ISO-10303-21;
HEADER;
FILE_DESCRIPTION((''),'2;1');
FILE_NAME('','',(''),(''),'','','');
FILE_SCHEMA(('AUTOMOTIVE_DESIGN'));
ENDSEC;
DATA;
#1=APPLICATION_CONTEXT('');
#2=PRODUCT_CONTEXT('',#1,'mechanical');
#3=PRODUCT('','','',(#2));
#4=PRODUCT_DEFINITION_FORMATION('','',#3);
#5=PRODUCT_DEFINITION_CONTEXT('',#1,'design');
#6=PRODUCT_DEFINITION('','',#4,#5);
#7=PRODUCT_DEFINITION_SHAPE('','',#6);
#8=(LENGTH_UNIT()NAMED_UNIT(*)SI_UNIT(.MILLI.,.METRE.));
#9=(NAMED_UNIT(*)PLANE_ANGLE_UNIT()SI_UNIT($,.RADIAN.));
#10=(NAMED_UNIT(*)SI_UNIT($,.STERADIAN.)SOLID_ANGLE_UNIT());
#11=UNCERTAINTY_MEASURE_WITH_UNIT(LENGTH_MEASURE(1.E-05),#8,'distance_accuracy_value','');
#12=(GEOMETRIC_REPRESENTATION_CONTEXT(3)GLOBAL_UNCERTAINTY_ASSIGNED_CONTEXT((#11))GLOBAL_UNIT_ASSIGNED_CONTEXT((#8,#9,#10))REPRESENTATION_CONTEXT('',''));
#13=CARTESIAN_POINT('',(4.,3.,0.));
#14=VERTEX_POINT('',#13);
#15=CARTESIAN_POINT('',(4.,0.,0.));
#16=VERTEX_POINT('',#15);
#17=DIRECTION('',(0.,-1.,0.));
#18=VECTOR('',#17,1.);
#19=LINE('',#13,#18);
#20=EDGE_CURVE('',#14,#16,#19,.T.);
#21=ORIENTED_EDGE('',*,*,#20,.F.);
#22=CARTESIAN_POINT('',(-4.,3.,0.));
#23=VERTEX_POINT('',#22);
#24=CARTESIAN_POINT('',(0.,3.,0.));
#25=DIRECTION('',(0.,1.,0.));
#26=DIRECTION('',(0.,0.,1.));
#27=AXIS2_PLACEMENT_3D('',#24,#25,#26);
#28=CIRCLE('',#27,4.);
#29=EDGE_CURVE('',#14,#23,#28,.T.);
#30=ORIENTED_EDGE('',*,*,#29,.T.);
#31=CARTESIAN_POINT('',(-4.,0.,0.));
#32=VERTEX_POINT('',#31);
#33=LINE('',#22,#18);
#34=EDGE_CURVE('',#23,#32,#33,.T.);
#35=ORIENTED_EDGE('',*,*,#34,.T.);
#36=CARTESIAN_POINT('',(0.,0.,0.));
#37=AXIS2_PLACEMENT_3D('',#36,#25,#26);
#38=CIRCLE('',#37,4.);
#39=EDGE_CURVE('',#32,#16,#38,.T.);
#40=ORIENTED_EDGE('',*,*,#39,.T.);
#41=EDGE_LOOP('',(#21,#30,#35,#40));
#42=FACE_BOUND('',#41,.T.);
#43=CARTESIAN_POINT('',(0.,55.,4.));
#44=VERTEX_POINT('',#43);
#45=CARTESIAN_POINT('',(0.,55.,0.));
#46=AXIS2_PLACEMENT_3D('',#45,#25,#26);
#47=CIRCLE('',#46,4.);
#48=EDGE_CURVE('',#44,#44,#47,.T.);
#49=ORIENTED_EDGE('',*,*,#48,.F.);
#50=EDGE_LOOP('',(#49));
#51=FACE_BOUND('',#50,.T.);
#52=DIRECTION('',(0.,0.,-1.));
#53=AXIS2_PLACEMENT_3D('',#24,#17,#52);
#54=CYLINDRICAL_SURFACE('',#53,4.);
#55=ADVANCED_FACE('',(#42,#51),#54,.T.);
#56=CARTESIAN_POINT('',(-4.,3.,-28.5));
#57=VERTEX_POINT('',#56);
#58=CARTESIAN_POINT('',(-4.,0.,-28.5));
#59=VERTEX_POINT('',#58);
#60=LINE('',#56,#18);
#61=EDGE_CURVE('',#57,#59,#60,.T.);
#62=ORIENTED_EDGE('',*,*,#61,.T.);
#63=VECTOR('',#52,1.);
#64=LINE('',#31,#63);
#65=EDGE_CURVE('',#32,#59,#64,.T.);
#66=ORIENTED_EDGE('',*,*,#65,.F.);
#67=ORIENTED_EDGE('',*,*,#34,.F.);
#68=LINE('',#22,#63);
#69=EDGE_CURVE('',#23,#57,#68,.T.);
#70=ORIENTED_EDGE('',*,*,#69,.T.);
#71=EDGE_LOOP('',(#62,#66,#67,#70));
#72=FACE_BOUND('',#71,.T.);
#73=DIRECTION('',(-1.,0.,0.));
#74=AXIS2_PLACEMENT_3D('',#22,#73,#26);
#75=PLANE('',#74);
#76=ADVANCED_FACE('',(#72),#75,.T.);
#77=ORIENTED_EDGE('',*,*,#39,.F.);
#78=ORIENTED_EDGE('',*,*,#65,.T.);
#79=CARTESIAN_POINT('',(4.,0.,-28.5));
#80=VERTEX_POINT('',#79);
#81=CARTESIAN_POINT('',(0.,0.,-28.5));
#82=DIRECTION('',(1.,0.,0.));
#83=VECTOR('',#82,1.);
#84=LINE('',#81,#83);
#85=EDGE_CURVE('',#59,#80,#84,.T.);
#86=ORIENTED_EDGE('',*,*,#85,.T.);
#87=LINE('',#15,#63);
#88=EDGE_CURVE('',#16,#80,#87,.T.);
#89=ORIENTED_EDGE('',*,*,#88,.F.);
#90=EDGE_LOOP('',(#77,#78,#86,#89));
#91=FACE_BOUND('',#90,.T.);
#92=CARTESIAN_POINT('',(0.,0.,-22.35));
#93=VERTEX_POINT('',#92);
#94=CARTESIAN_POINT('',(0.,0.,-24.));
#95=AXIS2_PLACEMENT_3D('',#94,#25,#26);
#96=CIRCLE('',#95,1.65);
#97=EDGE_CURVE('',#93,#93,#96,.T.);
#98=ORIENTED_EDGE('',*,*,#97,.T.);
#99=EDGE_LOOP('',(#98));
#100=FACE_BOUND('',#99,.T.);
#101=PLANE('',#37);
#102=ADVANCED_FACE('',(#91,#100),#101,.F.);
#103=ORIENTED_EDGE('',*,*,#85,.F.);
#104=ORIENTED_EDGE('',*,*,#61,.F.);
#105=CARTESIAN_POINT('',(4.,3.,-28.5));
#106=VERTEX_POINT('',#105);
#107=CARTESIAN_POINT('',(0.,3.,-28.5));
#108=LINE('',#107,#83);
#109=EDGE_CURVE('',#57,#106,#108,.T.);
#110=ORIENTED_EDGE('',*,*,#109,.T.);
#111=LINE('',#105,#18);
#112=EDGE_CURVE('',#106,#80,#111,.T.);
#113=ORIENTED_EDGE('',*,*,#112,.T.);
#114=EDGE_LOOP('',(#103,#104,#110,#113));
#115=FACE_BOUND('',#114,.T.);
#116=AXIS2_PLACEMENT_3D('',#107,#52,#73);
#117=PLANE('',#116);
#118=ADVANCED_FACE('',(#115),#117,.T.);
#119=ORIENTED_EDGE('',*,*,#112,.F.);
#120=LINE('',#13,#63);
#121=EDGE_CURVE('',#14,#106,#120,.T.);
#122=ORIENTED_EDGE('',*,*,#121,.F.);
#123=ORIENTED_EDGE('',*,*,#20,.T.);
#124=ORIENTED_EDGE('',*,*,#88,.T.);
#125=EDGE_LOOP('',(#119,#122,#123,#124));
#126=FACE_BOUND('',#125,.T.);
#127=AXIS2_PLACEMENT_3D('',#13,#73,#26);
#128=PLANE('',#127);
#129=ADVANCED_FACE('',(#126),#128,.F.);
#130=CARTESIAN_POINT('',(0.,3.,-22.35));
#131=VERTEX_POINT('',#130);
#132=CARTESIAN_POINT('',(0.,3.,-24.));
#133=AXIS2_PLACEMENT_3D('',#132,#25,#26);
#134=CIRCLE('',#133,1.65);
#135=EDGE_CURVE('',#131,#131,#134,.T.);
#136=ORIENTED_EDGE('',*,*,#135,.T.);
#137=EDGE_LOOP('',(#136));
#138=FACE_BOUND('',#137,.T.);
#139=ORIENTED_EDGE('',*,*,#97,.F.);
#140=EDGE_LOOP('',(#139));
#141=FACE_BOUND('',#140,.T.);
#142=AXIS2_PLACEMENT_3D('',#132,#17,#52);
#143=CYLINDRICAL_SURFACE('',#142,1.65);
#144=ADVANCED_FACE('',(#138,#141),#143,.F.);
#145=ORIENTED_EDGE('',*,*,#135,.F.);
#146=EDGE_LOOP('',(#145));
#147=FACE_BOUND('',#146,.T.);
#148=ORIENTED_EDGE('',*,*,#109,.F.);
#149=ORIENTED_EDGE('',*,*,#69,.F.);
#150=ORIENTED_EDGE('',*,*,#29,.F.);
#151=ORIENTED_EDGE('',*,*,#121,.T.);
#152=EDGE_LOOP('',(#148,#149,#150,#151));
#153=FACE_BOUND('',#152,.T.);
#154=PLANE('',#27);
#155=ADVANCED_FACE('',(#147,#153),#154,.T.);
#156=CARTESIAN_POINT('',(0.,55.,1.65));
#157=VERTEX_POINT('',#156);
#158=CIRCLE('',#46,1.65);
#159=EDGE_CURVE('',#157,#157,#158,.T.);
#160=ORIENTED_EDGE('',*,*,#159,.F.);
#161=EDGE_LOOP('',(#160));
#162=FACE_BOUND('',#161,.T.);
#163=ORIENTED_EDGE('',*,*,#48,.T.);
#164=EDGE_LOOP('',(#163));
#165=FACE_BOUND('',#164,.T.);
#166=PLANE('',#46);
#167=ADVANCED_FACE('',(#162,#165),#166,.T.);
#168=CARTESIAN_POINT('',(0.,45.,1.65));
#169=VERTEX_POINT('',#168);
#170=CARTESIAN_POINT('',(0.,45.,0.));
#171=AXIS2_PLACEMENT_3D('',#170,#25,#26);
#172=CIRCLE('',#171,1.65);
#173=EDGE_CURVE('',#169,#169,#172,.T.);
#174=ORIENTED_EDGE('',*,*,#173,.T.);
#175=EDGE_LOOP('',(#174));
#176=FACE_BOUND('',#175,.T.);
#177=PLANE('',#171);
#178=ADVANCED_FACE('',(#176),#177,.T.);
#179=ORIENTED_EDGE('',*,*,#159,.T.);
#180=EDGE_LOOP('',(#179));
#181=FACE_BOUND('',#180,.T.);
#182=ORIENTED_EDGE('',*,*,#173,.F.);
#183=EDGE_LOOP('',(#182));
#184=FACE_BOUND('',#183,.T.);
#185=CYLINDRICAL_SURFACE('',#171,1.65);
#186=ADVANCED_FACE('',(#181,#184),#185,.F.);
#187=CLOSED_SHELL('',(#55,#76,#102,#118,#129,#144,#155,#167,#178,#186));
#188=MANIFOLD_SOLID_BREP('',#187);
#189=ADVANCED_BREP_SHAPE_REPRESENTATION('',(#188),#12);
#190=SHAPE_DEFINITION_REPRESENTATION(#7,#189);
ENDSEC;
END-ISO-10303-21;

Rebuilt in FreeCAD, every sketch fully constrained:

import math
import FreeCAD as App
import Part
import Sketcher
from FreeCAD import Vector

doc = App.newDocument("Part")
params = doc.addObject("Spreadsheet::Sheet", "Params")
for row, (alias, value) in enumerate([
    ("sketch1_radius", "4 mm"),
    ("sketch1_diameter", "3.3 mm"),
    ("sketch1_height", "28.5 mm"),
    ("pad1_length", "3 mm"),
    ("sketch2_diameter", "8 mm"),
    ("pad2_length", "52 mm"),
    ("sketch3_diameter", "3.3 mm"),
    ("pocket1_length", "10 mm"),
], start=1):
    params.set(f"A{row}", alias)
    params.set(f"B{row}", "=" + value)
    params.setAlias(f"B{row}", alias)

body = doc.addObject("PartDesign::Body", "Body")

sketch1 = body.newObject("Sketcher::SketchObject", "Sketch")
sketch1.AttachmentSupport = (doc.getObject("XZ_Plane"), [""])
sketch1.MapMode = "FlatFace"
sketch1.addGeometry([
    Part.LineSegment(Vector(-4, -28.5, 0), Vector(-4, 0, 0)),
    Part.ArcOfCircle(Part.Circle(Vector(0, 0, 0), Vector(0, 0, 1), 4), math.radians(0), math.radians(180)),
    Part.LineSegment(Vector(4, 0, 0), Vector(4, -28.5, 0)),
    Part.LineSegment(Vector(4, -28.5, 0), Vector(-4, -28.5, 0)),
    Part.Circle(Vector(0, -24, 0), Vector(0, 0, 1), 1.6),
], False)
sketch1.addConstraint([
    Sketcher.Constraint("Tangent", 0, 2, 1, 2),
    Sketcher.Constraint("Tangent", 1, 1, 2, 1),
    Sketcher.Constraint("Coincident", 2, 2, 3, 1),
    Sketcher.Constraint("Coincident", 3, 2, 0, 1),
    Sketcher.Constraint("Vertical", 0),
    Sketcher.Constraint("Vertical", 2),
    Sketcher.Constraint("Horizontal", 3),
    Sketcher.Constraint("Coincident", 1, 3, -1, 1),
    Sketcher.Constraint("PointOnObject", 4, 3, -2),
    Sketcher.Constraint("Radius", 1, 4.0),
    Sketcher.Constraint("Diameter", 4, 3.3),
    Sketcher.Constraint("DistanceY", 0, 1, 0, 2, 28.5),
    Sketcher.Constraint("DistanceY", 4, 3, -1, 1, 24.0),
])
sketch1.setExpression("Constraints[9]", "Params.sketch1_radius")
sketch1.setExpression("Constraints[10]", "Params.sketch1_diameter")
sketch1.setExpression("Constraints[11]", "Params.sketch1_height")
pad1 = body.newObject("PartDesign::Pad", "Pad")
pad1.Profile = sketch1
pad1.setExpression("Length", "Params.pad1_length")
pad1.Reversed = True

sketch2 = body.newObject("Sketcher::SketchObject", "Sketch001")
sketch2.AttachmentSupport = (doc.getObject("XZ_Plane"), [""])
sketch2.MapMode = "FlatFace"
sketch2.AttachmentOffset = App.Placement(Vector(0, 0, -3), App.Rotation())
sketch2.addGeometry(Part.Circle(Vector(0, 0, 0), Vector(0, 0, 1), 4), False)
sketch2.addConstraint([
    Sketcher.Constraint("Coincident", 0, 3, -1, 1),
    Sketcher.Constraint("Diameter", 0, 8.0),
])
sketch2.setExpression("Constraints[1]", "Params.sketch2_diameter")
pad2 = body.newObject("PartDesign::Pad", "Pad001")
pad2.Profile = sketch2
pad2.setExpression("Length", "Params.pad2_length")
pad2.Reversed = True

sketch3 = body.newObject("Sketcher::SketchObject", "Sketch002")
sketch3.AttachmentSupport = (doc.getObject("XZ_Plane"), [""])
sketch3.MapMode = "FlatFace"
sketch3.AttachmentOffset = App.Placement(Vector(0, 0, -55), App.Rotation())
sketch3.addGeometry(Part.Circle(Vector(0, 0, 0), Vector(0, 0, 1), 1.6), False)
sketch3.addConstraint([
    Sketcher.Constraint("Coincident", 0, 3, -1, 1),
    Sketcher.Constraint("Diameter", 0, 3.3),
])
sketch3.setExpression("Constraints[1]", "Params.sketch3_diameter")
pocket1 = body.newObject("PartDesign::Pocket", "Pocket")
pocket1.Profile = sketch3
pocket1.setExpression("Length", "Params.pocket1_length")
pocket1.Reversed = True

doc.recompute()
